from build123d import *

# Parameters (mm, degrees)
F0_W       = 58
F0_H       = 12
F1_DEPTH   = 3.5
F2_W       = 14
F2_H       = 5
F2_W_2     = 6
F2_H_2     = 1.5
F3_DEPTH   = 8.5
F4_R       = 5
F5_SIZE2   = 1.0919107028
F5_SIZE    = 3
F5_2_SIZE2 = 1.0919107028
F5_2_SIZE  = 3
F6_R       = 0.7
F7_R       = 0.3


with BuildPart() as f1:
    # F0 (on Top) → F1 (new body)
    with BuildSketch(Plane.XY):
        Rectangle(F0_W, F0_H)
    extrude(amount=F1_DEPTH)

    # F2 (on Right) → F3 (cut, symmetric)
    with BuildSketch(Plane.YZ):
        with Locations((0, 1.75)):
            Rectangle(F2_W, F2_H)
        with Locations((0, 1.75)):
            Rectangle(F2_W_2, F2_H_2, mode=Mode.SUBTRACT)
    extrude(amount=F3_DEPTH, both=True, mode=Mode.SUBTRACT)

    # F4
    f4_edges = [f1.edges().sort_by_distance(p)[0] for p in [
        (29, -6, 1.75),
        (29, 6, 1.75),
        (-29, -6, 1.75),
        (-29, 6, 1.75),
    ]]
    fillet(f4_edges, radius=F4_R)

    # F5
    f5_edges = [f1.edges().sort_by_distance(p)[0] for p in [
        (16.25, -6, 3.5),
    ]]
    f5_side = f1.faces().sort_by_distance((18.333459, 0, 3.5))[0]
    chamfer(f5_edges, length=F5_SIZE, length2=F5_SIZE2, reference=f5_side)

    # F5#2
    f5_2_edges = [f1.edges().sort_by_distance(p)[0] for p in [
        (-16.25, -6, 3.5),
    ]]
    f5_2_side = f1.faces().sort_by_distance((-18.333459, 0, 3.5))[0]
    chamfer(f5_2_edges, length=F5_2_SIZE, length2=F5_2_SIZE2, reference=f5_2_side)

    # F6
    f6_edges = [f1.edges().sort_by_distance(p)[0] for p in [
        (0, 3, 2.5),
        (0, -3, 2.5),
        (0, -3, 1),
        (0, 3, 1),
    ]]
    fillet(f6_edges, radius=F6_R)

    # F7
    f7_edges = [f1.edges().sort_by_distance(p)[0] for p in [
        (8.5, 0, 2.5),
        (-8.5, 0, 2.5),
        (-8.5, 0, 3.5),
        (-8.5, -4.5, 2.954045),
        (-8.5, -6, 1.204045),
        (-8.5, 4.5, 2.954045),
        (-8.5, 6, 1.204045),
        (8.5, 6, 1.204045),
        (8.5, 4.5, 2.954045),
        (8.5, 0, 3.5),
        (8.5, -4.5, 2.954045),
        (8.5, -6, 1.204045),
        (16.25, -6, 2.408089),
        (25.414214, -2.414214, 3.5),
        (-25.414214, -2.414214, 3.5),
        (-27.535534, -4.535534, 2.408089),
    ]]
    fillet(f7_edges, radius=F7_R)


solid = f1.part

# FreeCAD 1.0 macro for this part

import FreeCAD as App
import Part
import Sketcher

V = App.Vector
Q = App.Units.Quantity


def edges_at(feature, points):
    """Names of the edges that pass closest to the given points."""
    edges = feature.Shape.Edges
    near = lambda p: min(range(len(edges)), key=lambda i: edges[i].distToShape(Part.Vertex(*p))[0])
    return sorted({f"Edge{near(p) + 1}" for p in points})


def add_polygon(sketch, points):
    """Adds a closed chain of lines whose ends are joined by coincident constraints."""
    first, n = sketch.GeometryCount, len(points)
    for a, b in zip(points, points[1:] + points[:1]):
        sketch.addGeometry(Part.LineSegment(App.Vector(*a, 0), App.Vector(*b, 0)), False)
    for i in range(n):
        sketch.addConstraint(Sketcher.Constraint("Coincident", first + i, 2, first + (i + 1) % n, 1))

doc = App.newDocument("Part")
body = doc.addObject("PartDesign::Body", "Body")

# Sketch on XY plane
sketch1 = body.newObject("Sketcher::SketchObject", "Sketch")
sketch1.AttachmentSupport = (doc.getObject("XY_Plane"), [""])
sketch1.MapMode = "FlatFace"
add_polygon(sketch1, [(-29, 6), (-29, -6), (29, -6), (29, 6)])  # lines 0-3
sketch1.addConstraint([
    Sketcher.Constraint("Vertical", 0),
    Sketcher.Constraint("Horizontal", 1),
    Sketcher.Constraint("Vertical", 2),
    Sketcher.Constraint("Horizontal", 3),
    Sketcher.Constraint("Symmetric", 0, 2, 2, 2, -1, 1),
    Sketcher.Constraint("DistanceX", 1, 1, 1, 2, Q("58 mm")),
    Sketcher.Constraint("DistanceY", 0, 2, 0, 1, Q("12 mm")),
])
pad1 = body.newObject("PartDesign::Pad", "Pad")
pad1.Profile = sketch1
pad1.Length = 3.5

# Sketch on YZ plane
sketch2 = body.newObject("Sketcher::SketchObject", "Sketch001")
sketch2.AttachmentSupport = (doc.getObject("YZ_Plane"), [""])
sketch2.MapMode = "FlatFace"
add_polygon(sketch2, [(-7, 4.25), (-7, -0.75), (7, -0.75), (7, 4.25)])  # lines 0-3
add_polygon(sketch2, [(3, 1), (-3, 1), (-3, 2.5), (3, 2.5)])  # lines 4-7
sketch2.addConstraint([
    Sketcher.Constraint("Vertical", 0),
    Sketcher.Constraint("Horizontal", 1),
    Sketcher.Constraint("Vertical", 2),
    Sketcher.Constraint("Horizontal", 3),
    Sketcher.Constraint("Horizontal", 4),
    Sketcher.Constraint("Vertical", 5),
    Sketcher.Constraint("Horizontal", 6),
    Sketcher.Constraint("Vertical", 7),
    Sketcher.Constraint("DistanceX", 1, 1, 1, 2, Q("14 mm")),
    Sketcher.Constraint("DistanceX", 4, 2, 4, 1, Q("6 mm")),
    Sketcher.Constraint("DistanceY", 0, 2, 0, 1, Q("5 mm")),
    Sketcher.Constraint("DistanceY", 5, 1, 5, 2, Q("1.5 mm")),
    Sketcher.Constraint("DistanceX", 0, 2, -1, 1, Q("7 mm")),
    Sketcher.Constraint("DistanceX", 4, 2, -1, 1, Q("3 mm")),
    Sketcher.Constraint("DistanceY", -1, 1, 4, 2, Q("1 mm")),
    Sketcher.Constraint("DistanceY", 0, 2, -1, 1, Q("0.75 mm")),
])
pocket1 = body.newObject("PartDesign::Pocket", "Pocket")
pocket1.Profile = sketch2
pocket1.Length = 17
pocket1.Midplane = True
doc.recompute()

fillet = body.newObject("PartDesign::Fillet", "Fillet")
fillet.Base = (pocket1, edges_at(pocket1, [
    (29, -6, 1.75),
    (29, 6, 1.75),
    (-29, -6, 1.75),
    (-29, 6, 1.75),
]))
fillet.Radius = 5
doc.recompute()

chamfer = body.newObject("PartDesign::Chamfer", "Chamfer")
chamfer.Base = (fillet, edges_at(fillet, [(16.25, -6, 3.5)]))
chamfer.ChamferType = "Two distances"
chamfer.Size = 3
chamfer.Size2 = 1.091911
doc.recompute()

chamfer2 = body.newObject("PartDesign::Chamfer", "Chamfer001")
chamfer2.Base = (chamfer, edges_at(chamfer, [(-16.25, -6, 3.5)]))
chamfer2.ChamferType = "Two distances"
chamfer2.Size = 3
chamfer2.Size2 = 1.091911
doc.recompute()

fillet2 = body.newObject("PartDesign::Fillet", "Fillet001")
fillet2.Base = (chamfer2, edges_at(chamfer2, [
    (0, 3, 2.5),
    (0, -3, 2.5),
    (0, -3, 1),
    (0, 3, 1),
]))
fillet2.Radius = 0.7
doc.recompute()

fillet3 = body.newObject("PartDesign::Fillet", "Fillet002")
fillet3.Base = (fillet2, edges_at(fillet2, [
    (8.5, 0, 2.5),
    (-8.5, 0, 2.5),
    (-8.5, 0, 3.5),
    (-8.5, -4.5, 2.954),
    (-8.5, -6, 1.204),
    (-8.5, 4.5, 2.954),
    (-8.5, 6, 1.204),
    (8.5, 6, 1.204),
    (8.5, 4.5, 2.954),
    (8.5, 0, 3.5),
    (8.5, -4.5, 2.954),
    (8.5, -6, 1.204),
    (16.25, -6, 2.408),
    (25.414, -2.414, 3.5),
    (-25.414, -2.414, 3.5),
    (-27.536, -4.536, 2.408),
]))
fillet3.Radius = 0.3

doc.recompute()
